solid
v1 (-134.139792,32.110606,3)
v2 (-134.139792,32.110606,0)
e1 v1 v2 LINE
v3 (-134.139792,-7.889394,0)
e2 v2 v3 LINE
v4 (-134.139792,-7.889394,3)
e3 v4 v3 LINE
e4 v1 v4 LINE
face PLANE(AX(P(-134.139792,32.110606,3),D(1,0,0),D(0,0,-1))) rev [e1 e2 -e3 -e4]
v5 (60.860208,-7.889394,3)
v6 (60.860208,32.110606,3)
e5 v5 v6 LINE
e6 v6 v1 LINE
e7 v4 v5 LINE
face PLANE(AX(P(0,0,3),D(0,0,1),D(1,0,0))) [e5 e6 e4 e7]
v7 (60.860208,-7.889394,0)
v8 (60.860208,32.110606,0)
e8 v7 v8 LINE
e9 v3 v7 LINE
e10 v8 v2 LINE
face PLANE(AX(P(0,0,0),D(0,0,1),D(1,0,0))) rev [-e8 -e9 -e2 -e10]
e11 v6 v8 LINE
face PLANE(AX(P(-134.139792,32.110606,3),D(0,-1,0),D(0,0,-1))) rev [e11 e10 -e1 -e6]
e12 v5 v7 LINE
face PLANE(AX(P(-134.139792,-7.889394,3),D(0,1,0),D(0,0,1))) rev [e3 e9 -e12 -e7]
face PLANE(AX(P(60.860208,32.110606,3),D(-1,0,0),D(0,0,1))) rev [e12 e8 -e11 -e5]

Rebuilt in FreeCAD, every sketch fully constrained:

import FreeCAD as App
import Part
import Sketcher

V = App.Vector


def add_polygon(sketch, points):
    """Adds a closed chain of lines whose ends are joined by coincident constraints."""
    first, n = sketch.GeometryCount, len(points)
    for a, b in zip(points, points[1:] + points[:1]):
        sketch.addGeometry(Part.LineSegment(App.Vector(*a, 0), App.Vector(*b, 0)), False)
    for i in range(n):
        sketch.addConstraint(Sketcher.Constraint("Coincident", first + i, 2, first + (i + 1) % n, 1))

doc = App.newDocument("Part")
body = doc.addObject("PartDesign::Body", "Body")

# Sketch on XY plane
sketch1 = doc.addObject("Sketcher::SketchObject", "Sketch")
body.addObject(sketch1)
sketch1.AttachmentSupport = (doc.XY_Plane, [""])
sketch1.MapMode = "FlatFace"
add_polygon(sketch1, [(-134, 32), (-134, -8), (61, -8), (61, 32)])  # lines 0-3
sketch1.addConstraint([
    Sketcher.Constraint("Vertical", 0),
    Sketcher.Constraint("Horizontal", 1),
    Sketcher.Constraint("Vertical", 2),
    Sketcher.Constraint("Horizontal", 3),
    Sketcher.Constraint("DistanceX", 1, 1, 1, 2, 195.0),
    Sketcher.Constraint("DistanceY", 0, 2, 0, 1, 40.0),
    Sketcher.Constraint("DistanceX", 0, 2, -1, 1, 134.139792),
    Sketcher.Constraint("DistanceY", 0, 2, -1, 1, 7.889394),
])
pad1 = doc.addObject("PartDesign::Pad", "Pad")
body.addObject(pad1)
pad1.Profile = sketch1
pad1.Length = 3

doc.recompute()
